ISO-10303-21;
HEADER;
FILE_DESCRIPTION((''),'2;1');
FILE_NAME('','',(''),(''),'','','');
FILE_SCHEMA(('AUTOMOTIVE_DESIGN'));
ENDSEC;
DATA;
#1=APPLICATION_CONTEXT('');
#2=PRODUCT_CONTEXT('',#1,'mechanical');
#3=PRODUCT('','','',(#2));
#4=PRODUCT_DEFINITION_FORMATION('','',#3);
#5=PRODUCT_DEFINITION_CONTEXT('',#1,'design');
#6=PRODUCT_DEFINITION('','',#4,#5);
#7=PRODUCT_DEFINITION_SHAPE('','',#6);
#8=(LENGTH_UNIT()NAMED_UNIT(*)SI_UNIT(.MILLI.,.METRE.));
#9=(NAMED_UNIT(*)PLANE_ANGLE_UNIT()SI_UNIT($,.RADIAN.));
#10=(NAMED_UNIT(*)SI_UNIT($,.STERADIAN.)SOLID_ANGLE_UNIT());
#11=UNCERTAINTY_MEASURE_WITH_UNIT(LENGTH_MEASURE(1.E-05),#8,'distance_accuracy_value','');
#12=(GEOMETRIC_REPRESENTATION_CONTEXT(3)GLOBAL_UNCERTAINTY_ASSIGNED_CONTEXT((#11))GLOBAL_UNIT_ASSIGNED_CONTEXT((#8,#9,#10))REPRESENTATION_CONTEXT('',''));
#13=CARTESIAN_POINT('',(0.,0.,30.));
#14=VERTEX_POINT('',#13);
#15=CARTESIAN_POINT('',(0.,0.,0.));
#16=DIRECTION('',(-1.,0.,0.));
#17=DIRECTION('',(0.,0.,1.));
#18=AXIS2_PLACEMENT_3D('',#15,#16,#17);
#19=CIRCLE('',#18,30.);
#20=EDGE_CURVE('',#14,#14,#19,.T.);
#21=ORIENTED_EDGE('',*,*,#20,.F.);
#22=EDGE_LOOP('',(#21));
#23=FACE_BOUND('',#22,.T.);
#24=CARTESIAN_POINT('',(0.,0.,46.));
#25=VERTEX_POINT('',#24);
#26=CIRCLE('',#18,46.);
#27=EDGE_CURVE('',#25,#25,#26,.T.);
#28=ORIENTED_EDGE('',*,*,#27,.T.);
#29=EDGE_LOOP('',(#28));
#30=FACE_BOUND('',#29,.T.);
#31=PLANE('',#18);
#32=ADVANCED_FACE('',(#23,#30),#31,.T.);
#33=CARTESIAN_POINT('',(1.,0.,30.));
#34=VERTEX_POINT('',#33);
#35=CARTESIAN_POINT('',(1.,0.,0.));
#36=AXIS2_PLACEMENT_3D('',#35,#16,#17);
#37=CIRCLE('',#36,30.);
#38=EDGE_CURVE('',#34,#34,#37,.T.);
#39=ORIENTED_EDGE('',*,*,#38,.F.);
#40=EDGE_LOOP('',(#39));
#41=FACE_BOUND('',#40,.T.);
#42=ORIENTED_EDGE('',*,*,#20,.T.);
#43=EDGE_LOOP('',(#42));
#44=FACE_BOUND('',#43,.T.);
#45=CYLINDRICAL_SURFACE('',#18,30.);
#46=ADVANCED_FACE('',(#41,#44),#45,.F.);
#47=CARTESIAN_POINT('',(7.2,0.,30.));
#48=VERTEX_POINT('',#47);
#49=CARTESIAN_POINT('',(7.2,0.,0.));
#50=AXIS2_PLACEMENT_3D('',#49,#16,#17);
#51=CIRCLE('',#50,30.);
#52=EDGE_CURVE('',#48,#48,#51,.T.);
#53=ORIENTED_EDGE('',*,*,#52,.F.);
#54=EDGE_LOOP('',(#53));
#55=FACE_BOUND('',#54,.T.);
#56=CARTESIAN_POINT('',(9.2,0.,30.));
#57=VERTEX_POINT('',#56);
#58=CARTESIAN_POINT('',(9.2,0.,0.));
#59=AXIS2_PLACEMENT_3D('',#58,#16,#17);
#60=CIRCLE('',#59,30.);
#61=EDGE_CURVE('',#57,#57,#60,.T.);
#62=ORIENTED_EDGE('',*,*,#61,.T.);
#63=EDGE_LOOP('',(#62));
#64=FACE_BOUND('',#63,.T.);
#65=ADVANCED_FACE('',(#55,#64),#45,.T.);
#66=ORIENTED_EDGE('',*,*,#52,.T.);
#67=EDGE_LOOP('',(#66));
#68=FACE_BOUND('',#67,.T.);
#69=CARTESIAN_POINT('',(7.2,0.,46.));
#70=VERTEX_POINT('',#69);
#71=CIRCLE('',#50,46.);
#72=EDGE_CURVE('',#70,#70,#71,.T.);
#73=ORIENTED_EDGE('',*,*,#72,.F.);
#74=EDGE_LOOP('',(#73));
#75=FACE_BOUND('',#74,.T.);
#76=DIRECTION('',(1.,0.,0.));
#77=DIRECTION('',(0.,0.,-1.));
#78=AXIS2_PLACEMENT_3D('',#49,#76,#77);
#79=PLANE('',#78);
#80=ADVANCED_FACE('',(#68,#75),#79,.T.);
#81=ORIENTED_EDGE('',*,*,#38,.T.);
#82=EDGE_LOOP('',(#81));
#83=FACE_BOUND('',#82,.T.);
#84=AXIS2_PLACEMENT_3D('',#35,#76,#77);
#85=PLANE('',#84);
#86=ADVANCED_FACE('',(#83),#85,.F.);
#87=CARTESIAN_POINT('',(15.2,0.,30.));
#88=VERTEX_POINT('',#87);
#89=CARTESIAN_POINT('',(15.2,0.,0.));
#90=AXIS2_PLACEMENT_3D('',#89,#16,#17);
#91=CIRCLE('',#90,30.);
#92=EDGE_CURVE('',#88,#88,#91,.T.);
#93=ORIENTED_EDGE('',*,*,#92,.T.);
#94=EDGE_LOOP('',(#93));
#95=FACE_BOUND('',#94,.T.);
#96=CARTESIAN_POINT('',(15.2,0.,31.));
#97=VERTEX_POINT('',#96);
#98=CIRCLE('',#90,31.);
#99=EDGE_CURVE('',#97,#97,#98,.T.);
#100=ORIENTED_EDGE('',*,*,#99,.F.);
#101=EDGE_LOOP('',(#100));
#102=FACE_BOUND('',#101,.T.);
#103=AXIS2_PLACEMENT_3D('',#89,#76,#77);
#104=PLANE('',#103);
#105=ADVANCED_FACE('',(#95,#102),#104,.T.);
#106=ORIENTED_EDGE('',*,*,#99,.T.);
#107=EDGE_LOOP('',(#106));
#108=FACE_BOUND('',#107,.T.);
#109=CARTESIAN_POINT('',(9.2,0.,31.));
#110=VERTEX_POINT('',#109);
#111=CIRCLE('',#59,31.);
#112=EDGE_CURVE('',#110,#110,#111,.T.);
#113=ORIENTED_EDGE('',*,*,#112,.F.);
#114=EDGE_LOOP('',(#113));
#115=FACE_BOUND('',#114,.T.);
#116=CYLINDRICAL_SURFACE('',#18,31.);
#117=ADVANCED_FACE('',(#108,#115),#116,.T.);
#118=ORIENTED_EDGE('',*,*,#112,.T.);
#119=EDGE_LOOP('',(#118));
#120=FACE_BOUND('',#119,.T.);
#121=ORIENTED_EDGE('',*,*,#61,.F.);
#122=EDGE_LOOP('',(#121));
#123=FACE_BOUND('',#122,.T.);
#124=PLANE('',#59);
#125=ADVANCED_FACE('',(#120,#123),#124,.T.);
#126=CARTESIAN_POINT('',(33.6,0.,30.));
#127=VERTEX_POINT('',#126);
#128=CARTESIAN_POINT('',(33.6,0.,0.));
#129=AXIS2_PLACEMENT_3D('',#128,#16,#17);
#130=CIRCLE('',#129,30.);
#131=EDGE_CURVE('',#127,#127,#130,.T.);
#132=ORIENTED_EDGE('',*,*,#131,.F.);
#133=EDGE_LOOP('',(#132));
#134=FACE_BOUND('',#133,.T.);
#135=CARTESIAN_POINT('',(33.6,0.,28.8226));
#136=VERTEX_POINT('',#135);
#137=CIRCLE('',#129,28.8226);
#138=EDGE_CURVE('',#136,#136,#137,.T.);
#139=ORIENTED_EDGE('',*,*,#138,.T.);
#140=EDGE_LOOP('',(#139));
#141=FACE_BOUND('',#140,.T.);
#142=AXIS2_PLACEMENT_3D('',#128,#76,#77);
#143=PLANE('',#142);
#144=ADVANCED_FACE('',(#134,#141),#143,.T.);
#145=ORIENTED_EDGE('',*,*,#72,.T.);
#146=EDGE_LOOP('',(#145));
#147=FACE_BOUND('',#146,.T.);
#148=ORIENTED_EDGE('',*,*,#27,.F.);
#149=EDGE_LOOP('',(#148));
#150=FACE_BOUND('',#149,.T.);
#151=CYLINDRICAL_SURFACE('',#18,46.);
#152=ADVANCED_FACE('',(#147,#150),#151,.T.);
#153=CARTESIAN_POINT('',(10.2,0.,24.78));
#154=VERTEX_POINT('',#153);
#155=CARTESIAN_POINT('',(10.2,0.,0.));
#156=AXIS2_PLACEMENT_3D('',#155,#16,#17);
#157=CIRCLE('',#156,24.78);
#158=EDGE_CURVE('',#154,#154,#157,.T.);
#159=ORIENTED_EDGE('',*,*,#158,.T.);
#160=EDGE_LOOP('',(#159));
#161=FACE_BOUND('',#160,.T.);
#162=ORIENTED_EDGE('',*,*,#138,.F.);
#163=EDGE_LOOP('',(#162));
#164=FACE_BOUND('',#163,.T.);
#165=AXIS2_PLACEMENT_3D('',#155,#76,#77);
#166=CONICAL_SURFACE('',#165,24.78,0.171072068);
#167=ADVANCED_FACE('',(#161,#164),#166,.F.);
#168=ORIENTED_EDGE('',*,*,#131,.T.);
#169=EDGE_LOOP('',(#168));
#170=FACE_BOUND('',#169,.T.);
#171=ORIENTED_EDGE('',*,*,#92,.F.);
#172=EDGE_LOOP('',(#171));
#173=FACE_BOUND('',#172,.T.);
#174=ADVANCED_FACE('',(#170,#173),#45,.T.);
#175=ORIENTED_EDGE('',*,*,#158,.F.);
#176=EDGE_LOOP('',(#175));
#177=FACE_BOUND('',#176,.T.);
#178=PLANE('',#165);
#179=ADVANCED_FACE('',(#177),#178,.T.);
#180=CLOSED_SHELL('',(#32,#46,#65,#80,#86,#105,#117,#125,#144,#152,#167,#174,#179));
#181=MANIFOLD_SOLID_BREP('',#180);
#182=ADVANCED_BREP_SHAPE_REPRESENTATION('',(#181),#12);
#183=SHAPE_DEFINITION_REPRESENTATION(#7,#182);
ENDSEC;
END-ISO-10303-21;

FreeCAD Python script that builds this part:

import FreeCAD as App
import Part
import Sketcher
Q = App.Units.Quantity


def add_polygon(sketch, points):
    """Adds a closed chain of lines whose ends are joined by coincident constraints."""
    first, n = sketch.GeometryCount, len(points)
    for a, b in zip(points, points[1:] + points[:1]):
        sketch.addGeometry(Part.LineSegment(App.Vector(*a, 0), App.Vector(*b, 0)), False)
    for i in range(n):
        sketch.addConstraint(Sketcher.Constraint("Coincident", first + i, 2, first + (i + 1) % n, 1))

doc = App.newDocument("Part")
params = doc.addObject("Spreadsheet::Sheet", "Params")
for row, (alias, value) in enumerate([
    ("sketch1_width", "1 mm"),
    ("sketch1_width2", "6 mm"),
    ("sketch1_width3", "2 mm"),
    ("sketch1_height", "30 mm"),
    ("sketch1_height2", "16 mm"),
    ("revolution_angle", "360 deg"),
], start=1):
    params.set(f"A{row}", alias)
    params.set(f"B{row}", "=" + value)
    params.setAlias(f"B{row}", alias)

body = doc.addObject("PartDesign::Body", "Body")

sketch1 = body.newObject("Sketcher::SketchObject", "Sketch")
sketch1.AttachmentSupport = (doc.getObject("XY_Plane"), [""])
sketch1.MapMode = "FlatFace"
add_polygon(sketch1, [(0, 30), (1, 30), (1, 0), (10.2, 0), (10.2, 24.8), (33.6, 28.8), (33.6, 30), (15.2, 30), (15.2, 31), (9.2, 31), (9.2, 30), (7.2, 30), (7.2, 46), (0, 46)])
sketch1.addConstraint([
    Sketcher.Constraint("Horizontal", 0),
    Sketcher.Constraint("Vertical", 1),
    Sketcher.Constraint("Horizontal", 2),
    Sketcher.Constraint("Vertical", 3),
    Sketcher.Constraint("Vertical", 5),
    Sketcher.Constraint("Horizontal", 6),
    Sketcher.Constraint("Vertical", 7),
    Sketcher.Constraint("Horizontal", 8),
    Sketcher.Constraint("Vertical", 9),
    Sketcher.Constraint("Horizontal", 10),
    Sketcher.Constraint("Vertical", 11),
    Sketcher.Constraint("Horizontal", 12),
    Sketcher.Constraint("Vertical", 13),
    Sketcher.Constraint("PointOnObject", 1, 2, -1),
    Sketcher.Constraint("PointOnObject", 12, 2, -2),
    Sketcher.Constraint("Horizontal", 0, 2, 5, 2),
    Sketcher.Constraint("Horizontal", 6, 2, 9, 2),
    Sketcher.Constraint("Equal", 0, 7),
    Sketcher.Constraint("DistanceX", 0, 1, 0, 2, Q("1 mm")),
    Sketcher.Constraint("DistanceX", 8, 2, 8, 1, Q("6 mm")),
    Sketcher.Constraint("DistanceX", 10, 2, 10, 1, Q("2 mm")),
    Sketcher.Constraint("DistanceY", 1, 2, 1, 1, Q("30 mm")),
    Sketcher.Constraint("DistanceY", 11, 1, 11, 2, Q("16 mm")),
    Sketcher.Constraint("DistanceX", 2, 1, 2, 2, Q("9.2 mm")),
    Sketcher.Constraint("DistanceX", 6, 2, 6, 1, Q("18.4 mm")),
    Sketcher.Constraint("DistanceX", 12, 2, 12, 1, Q("7.2 mm")),
    Sketcher.Constraint("DistanceY", 3, 1, 3, 2, Q("24.78 mm")),
    Sketcher.Constraint("DistanceY", 5, 1, 5, 2, Q("1.1774 mm")),
])
sketch1.setExpression("Constraints[32]", "Params.sketch1_width")
sketch1.setExpression("Constraints[33]", "Params.sketch1_width2")
sketch1.setExpression("Constraints[34]", "Params.sketch1_width3")
sketch1.setExpression("Constraints[35]", "Params.sketch1_height")
sketch1.setExpression("Constraints[36]", "Params.sketch1_height2")
revolution = body.newObject("PartDesign::Revolution", "Revolution")
revolution.Profile = sketch1
revolution.ReferenceAxis = (sketch1, ["H_Axis"])
revolution.setExpression("Angle", "Params.revolution_angle")

doc.recompute()
